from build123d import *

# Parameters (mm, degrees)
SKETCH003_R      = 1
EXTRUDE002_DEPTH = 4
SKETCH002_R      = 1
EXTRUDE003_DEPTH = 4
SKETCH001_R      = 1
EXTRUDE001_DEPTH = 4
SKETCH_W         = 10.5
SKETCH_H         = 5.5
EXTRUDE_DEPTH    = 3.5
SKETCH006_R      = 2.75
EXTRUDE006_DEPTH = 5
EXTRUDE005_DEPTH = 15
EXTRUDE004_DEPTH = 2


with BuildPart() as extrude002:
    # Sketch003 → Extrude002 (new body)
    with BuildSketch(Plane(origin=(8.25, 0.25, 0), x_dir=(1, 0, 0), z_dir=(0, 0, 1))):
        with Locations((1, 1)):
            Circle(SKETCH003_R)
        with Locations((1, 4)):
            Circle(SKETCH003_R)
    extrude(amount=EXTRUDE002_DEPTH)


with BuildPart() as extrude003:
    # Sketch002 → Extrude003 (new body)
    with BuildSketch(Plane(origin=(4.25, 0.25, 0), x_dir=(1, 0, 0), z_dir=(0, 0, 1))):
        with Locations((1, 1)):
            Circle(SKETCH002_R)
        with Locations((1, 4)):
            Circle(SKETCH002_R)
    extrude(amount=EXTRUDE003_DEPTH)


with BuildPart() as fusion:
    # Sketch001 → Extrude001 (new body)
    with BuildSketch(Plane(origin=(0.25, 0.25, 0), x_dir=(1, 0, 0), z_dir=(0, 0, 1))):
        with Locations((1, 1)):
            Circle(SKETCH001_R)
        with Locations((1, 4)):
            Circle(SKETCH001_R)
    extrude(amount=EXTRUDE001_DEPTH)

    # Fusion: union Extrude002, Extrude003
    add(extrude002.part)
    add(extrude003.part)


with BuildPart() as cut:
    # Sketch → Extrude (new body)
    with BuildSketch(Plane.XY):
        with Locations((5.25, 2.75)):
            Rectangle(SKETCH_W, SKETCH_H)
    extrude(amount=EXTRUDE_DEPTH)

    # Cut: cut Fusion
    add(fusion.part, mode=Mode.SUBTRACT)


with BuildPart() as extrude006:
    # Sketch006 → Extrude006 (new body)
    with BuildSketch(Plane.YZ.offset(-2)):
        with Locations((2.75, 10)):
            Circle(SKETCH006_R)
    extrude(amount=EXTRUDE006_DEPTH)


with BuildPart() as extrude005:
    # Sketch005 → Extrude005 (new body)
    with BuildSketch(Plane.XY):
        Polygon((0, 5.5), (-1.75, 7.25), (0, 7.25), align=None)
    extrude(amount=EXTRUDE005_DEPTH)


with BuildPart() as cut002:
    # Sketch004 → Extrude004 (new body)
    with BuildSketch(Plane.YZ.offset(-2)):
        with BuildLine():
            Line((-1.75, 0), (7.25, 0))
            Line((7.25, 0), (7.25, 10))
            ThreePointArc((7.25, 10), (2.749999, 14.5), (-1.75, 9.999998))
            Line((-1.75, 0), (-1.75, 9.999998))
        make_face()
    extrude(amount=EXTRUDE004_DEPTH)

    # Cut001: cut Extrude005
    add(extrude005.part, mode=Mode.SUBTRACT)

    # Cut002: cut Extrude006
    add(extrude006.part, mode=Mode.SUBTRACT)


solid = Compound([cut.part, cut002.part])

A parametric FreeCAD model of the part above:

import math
import FreeCAD as App
import Part
import Sketcher


def add_polygon(sketch, points):
    """Adds a closed chain of lines whose ends are joined by coincident constraints."""
    first, n = sketch.GeometryCount, len(points)
    for a, b in zip(points, points[1:] + points[:1]):
        sketch.addGeometry(Part.LineSegment(App.Vector(*a, 0), App.Vector(*b, 0)), False)
    for i in range(n):
        sketch.addConstraint(Sketcher.Constraint("Coincident", first + i, 2, first + (i + 1) % n, 1))

doc = App.newDocument("Part")
body = doc.addObject("PartDesign::Body", "Body")
body.AllowCompound = True

# Sketch on XY plane
sketch1 = body.newObject("Sketcher::SketchObject", "Sketch")
sketch1.AttachmentSupport = (doc.getObject("XY_Plane"), [""])
sketch1.MapMode = "FlatFace"
sketch1.addGeometry([
    Part.Circle(App.Vector(9.2, 1.2, 0), App.Vector(0, 0, 1), 1),
    Part.Circle(App.Vector(9.2, 4.2, 0), App.Vector(0, 0, 1), 1),
], False)
sketch1.addConstraint([
    Sketcher.Constraint("Equal", 0, 1),
    Sketcher.Constraint("Vertical", 0, 3, 1, 3),
    Sketcher.Constraint("Diameter", 0, 2.0),
    Sketcher.Constraint("DistanceY", 0, 3, 1, 3, 3.0),
    Sketcher.Constraint("DistanceX", -1, 1, 0, 3, 9.25),
    Sketcher.Constraint("DistanceY", -1, 1, 0, 3, 1.25),
])
pad1 = body.newObject("PartDesign::Pad", "Pad")
pad1.Profile = sketch1
pad1.Length = 4
body2 = doc.addObject("PartDesign::Body", "Body001")
body2.AllowCompound = True

# Sketch on XY plane
sketch2 = body2.newObject("Sketcher::SketchObject", "Sketch001")
sketch2.AttachmentSupport = (doc.getObject("XY_Plane001"), [""])
sketch2.MapMode = "FlatFace"
sketch2.addGeometry([
    Part.Circle(App.Vector(5.2, 1.2, 0), App.Vector(0, 0, 1), 1),
    Part.Circle(App.Vector(5.2, 4.2, 0), App.Vector(0, 0, 1), 1),
], False)
sketch2.addConstraint([
    Sketcher.Constraint("Equal", 0, 1),
    Sketcher.Constraint("Vertical", 0, 3, 1, 3),
    Sketcher.Constraint("Diameter", 0, 2.0),
    Sketcher.Constraint("DistanceY", 0, 3, 1, 3, 3.0),
    Sketcher.Constraint("DistanceX", -1, 1, 0, 3, 5.25),
    Sketcher.Constraint("DistanceY", -1, 1, 0, 3, 1.25),
])
pad2 = body2.newObject("PartDesign::Pad", "Pad001")
pad2.Profile = sketch2
pad2.Length = 4
body3 = doc.addObject("PartDesign::Body", "Body002")
body3.AllowCompound = True

# Sketch on XY plane
sketch3 = body3.newObject("Sketcher::SketchObject", "Sketch002")
sketch3.AttachmentSupport = (doc.getObject("XY_Plane002"), [""])
sketch3.MapMode = "FlatFace"
sketch3.addGeometry([
    Part.Circle(App.Vector(1.2, 1.2, 0), App.Vector(0, 0, 1), 1),
    Part.Circle(App.Vector(1.2, 4.2, 0), App.Vector(0, 0, 1), 1),
], False)
sketch3.addConstraint([
    Sketcher.Constraint("Equal", 0, 1),
    Sketcher.Constraint("Vertical", 0, 3, 1, 3),
    Sketcher.Constraint("Diameter", 0, 2.0),
    Sketcher.Constraint("DistanceY", 0, 3, 1, 3, 3.0),
    Sketcher.Constraint("DistanceX", -1, 1, 0, 3, 1.25),
    Sketcher.Constraint("DistanceY", -1, 1, 0, 3, 1.25),
])
pad3 = body3.newObject("PartDesign::Pad", "Pad002")
pad3.Profile = sketch3
pad3.Length = 4
doc.recompute()

boolean = body3.newObject("PartDesign::Boolean", "Boolean")
boolean.Type = "Fuse"
boolean.addObjects([body])
doc.recompute()

boolean2 = body3.newObject("PartDesign::Boolean", "Boolean001")
boolean2.Type = "Fuse"
boolean2.addObjects([body2])
body4 = doc.addObject("PartDesign::Body", "Body003")

# Sketch on XY plane
sketch4 = body4.newObject("Sketcher::SketchObject", "Sketch003")
sketch4.AttachmentSupport = (doc.getObject("XY_Plane003"), [""])
sketch4.MapMode = "FlatFace"
add_polygon(sketch4, [(0, 6), (0, 0), (10, 0), (10, 6)])  # lines 0-3
sketch4.addConstraint([
    Sketcher.Constraint("Vertical", 0),
    Sketcher.Constraint("Horizontal", 1),
    Sketcher.Constraint("Vertical", 2),
    Sketcher.Constraint("Horizontal", 3),
    Sketcher.Constraint("Coincident", 0, 2, -1, 1),
    Sketcher.Constraint("DistanceX", 1, 1, 1, 2, 10.5),
    Sketcher.Constraint("DistanceY", 0, 2, 0, 1, 5.5),
])
pad4 = body4.newObject("PartDesign::Pad", "Pad003")
pad4.Profile = sketch4
pad4.Length = 3.5
doc.recompute()

boolean3 = body4.newObject("PartDesign::Boolean", "Boolean002")
boolean3.Type = "Cut"
boolean3.addObjects([body3])
body5 = doc.addObject("PartDesign::Body", "Body004")

# Sketch on YZ plane
sketch5 = body5.newObject("Sketcher::SketchObject", "Sketch004")
sketch5.AttachmentSupport = (doc.getObject("YZ_Plane004"), [""])
sketch5.MapMode = "FlatFace"
sketch5.AttachmentOffset = App.Placement(App.Vector(0, 0, -2), App.Rotation())
sketch5.addGeometry(Part.Circle(App.Vector(2.8, 10, 0), App.Vector(0, 0, 1), 2.8), False)
sketch5.addConstraint([
    Sketcher.Constraint("Diameter", 0, 5.5),
    Sketcher.Constraint("DistanceY", -1, 1, 0, 3, 10.0),
    Sketcher.Constraint("DistanceX", -1, 1, 0, 3, 2.75),
])
pad5 = body5.newObject("PartDesign::Pad", "Pad004")
pad5.Profile = sketch5
pad5.Length = 5
body6 = doc.addObject("PartDesign::Body", "Body005")

# Sketch on XY plane
sketch6 = body6.newObject("Sketcher::SketchObject", "Sketch005")
sketch6.AttachmentSupport = (doc.getObject("XY_Plane005"), [""])
sketch6.MapMode = "FlatFace"
add_polygon(sketch6, [(-1.8, 7.2), (0, 5.5), (0, 7.2)])  # lines 0-2
sketch6.addConstraint([
    Sketcher.Constraint("Vertical", 1),
    Sketcher.Constraint("Horizontal", 2),
    Sketcher.Constraint("PointOnObject", 0, 2, -2),
    Sketcher.Constraint("Equal", 2, 1),
    Sketcher.Constraint("DistanceX", 2, 2, 2, 1, 1.75),
    Sketcher.Constraint("DistanceY", -1, 1, 0, 2, 5.5),
])
pad6 = body6.newObject("PartDesign::Pad", "Pad005")
pad6.Profile = sketch6
pad6.Length = 15
body7 = doc.addObject("PartDesign::Body", "Body006")

# Sketch on YZ plane
sketch7 = body7.newObject("Sketcher::SketchObject", "Sketch006")
sketch7.AttachmentSupport = (doc.getObject("YZ_Plane006"), [""])
sketch7.MapMode = "FlatFace"
sketch7.AttachmentOffset = App.Placement(App.Vector(0, 0, -2), App.Rotation())
sketch7.addGeometry([
    Part.LineSegment(App.Vector(-1.8, 0, 0), App.Vector(7.2, 0, 0)),
    Part.LineSegment(App.Vector(7.2, 0, 0), App.Vector(7.2, 10, 0)),
    Part.ArcOfCircle(Part.Circle(App.Vector(2.8, 10, 0), App.Vector(0, 0, 1), 4.5), math.radians(0), math.radians(180)),
    Part.LineSegment(App.Vector(-1.8, 10, 0), App.Vector(-1.8, 0, 0)),
], False)
sketch7.addConstraint([
    Sketcher.Constraint("Coincident", 0, 2, 1, 1),
    Sketcher.Constraint("Tangent", 1, 2, 2, 1),
    Sketcher.Constraint("Tangent", 2, 2, 3, 1),
    Sketcher.Constraint("Coincident", 3, 2, 0, 1),
    Sketcher.Constraint("Horizontal", 0),
    Sketcher.Constraint("Vertical", 1),
    Sketcher.Constraint("Vertical", 3),
    Sketcher.Constraint("PointOnObject", 0, 2, -1),
    Sketcher.Constraint("Radius", 2, 4.5),
    Sketcher.Constraint("DistanceY", 1, 1, 1, 2, 10.0),
    Sketcher.Constraint("DistanceX", -1, 1, 2, 3, 2.75),
])
pad7 = body7.newObject("PartDesign::Pad", "Pad006")
pad7.Profile = sketch7
pad7.Length = 2
doc.recompute()

boolean4 = body7.newObject("PartDesign::Boolean", "Boolean003")
boolean4.Type = "Cut"
boolean4.addObjects([body6])
doc.recompute()

boolean5 = body7.newObject("PartDesign::Boolean", "Boolean004")
boolean5.Type = "Cut"
boolean5.addObjects([body5])

doc.recompute()
